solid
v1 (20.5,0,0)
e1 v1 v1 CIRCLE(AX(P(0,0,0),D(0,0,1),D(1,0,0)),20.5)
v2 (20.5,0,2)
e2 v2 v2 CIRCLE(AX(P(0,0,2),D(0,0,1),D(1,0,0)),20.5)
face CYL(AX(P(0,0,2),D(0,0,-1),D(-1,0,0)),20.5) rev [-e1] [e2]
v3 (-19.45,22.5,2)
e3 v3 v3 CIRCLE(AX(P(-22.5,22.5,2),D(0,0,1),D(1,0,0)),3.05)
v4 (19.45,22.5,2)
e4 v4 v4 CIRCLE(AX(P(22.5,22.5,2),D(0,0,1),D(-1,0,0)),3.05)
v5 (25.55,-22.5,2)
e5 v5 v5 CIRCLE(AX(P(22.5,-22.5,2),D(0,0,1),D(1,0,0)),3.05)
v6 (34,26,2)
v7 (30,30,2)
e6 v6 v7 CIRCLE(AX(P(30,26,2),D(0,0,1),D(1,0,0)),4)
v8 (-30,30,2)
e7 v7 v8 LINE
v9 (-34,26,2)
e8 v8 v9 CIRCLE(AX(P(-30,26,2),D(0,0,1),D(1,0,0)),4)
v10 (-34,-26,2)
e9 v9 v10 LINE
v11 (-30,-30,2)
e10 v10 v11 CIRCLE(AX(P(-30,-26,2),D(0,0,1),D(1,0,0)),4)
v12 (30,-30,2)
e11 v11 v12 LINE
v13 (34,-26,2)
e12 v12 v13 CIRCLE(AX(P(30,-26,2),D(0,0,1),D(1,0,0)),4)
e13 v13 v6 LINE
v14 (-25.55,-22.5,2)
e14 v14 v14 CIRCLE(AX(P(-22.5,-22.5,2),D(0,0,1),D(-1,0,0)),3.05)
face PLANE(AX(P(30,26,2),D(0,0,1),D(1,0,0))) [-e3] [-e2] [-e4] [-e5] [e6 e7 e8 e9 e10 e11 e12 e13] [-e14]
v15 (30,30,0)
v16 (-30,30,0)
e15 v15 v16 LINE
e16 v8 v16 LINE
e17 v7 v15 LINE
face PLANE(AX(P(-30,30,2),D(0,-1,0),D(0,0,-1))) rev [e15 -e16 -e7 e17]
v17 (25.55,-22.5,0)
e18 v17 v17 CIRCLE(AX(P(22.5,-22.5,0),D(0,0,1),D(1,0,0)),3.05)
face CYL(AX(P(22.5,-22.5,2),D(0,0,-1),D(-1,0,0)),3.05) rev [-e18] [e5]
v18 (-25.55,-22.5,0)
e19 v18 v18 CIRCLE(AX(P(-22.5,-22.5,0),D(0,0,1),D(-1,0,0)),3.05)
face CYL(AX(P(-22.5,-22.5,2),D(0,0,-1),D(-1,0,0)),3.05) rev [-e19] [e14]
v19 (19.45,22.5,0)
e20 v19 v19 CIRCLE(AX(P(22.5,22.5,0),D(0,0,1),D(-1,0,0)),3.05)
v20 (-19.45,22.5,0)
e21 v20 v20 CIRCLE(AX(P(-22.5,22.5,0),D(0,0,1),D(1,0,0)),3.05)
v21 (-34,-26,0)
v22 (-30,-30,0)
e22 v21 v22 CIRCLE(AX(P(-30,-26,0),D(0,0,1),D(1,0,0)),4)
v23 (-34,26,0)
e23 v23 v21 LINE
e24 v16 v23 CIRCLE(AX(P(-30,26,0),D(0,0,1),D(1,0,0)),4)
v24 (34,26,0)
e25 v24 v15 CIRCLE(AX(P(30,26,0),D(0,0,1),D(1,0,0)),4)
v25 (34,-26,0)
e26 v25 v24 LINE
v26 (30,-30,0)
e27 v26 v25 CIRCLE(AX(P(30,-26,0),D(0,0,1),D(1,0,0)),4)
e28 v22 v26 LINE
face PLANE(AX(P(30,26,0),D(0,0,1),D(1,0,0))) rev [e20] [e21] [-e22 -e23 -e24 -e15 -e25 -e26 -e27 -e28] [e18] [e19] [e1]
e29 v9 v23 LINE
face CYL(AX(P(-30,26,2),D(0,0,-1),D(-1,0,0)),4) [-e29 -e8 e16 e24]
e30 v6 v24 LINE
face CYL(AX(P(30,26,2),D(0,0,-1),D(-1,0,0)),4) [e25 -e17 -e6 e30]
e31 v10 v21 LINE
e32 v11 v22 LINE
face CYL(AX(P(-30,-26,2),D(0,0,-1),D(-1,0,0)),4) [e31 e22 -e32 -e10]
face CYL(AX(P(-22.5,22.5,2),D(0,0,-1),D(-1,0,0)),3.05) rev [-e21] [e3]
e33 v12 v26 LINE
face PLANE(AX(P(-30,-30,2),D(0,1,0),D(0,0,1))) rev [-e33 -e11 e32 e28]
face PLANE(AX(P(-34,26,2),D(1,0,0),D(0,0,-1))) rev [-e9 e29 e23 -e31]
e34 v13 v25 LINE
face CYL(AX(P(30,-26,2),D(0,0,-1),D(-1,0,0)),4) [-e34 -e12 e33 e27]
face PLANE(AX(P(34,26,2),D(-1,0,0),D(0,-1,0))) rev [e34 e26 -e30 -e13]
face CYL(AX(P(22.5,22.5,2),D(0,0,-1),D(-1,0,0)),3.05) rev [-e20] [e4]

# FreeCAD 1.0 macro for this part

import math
import FreeCAD as App
import Part
import Sketcher
from FreeCAD import Vector

doc = App.newDocument("Part")
body = doc.addObject("PartDesign::Body", "Body")

# Sketch on XY plane
sketch1 = body.newObject("Sketcher::SketchObject", "Sketch")
sketch1.AttachmentSupport = (doc.getObject("XY_Plane"), [""])
sketch1.MapMode = "FlatFace"
sketch1.addGeometry(Part.LineSegment(Vector(30, 30, 0), Vector(-30, 30, 0)), False)
sketch1.addGeometry(Part.ArcOfCircle(Part.Circle(Vector(-30, 26, 0), Vector(0, 0, 1), 4), math.radians(90), math.radians(180)), False)
sketch1.addGeometry(Part.LineSegment(Vector(-34, 26, 0), Vector(-34, -26, 0)), False)
sketch1.addGeometry(Part.ArcOfCircle(Part.Circle(Vector(-30, -26, 0), Vector(0, 0, 1), 4), math.radians(180), math.radians(270)), False)
sketch1.addGeometry(Part.LineSegment(Vector(-30, -30, 0), Vector(30, -30, 0)), False)
sketch1.addGeometry(Part.ArcOfCircle(Part.Circle(Vector(30, -26, 0), Vector(0, 0, 1), 4), math.radians(-90), math.radians(0)), False)
sketch1.addGeometry(Part.LineSegment(Vector(34, -26, 0), Vector(34, 26, 0)), False)
sketch1.addGeometry(Part.ArcOfCircle(Part.Circle(Vector(30, 26, 0), Vector(0, 0, 1), 4), math.radians(0), math.radians(90)), False)
sketch1.addGeometry(Part.Circle(Vector(22.5, -22.5, 0), Vector(0, 0, 1), 3), False)
sketch1.addGeometry(Part.Circle(Vector(-22.5, -22.5, 0), Vector(0, 0, 1), 3), False)
sketch1.addGeometry(Part.Circle(Vector(22.5, 22.5, 0), Vector(0, 0, 1), 3), False)
sketch1.addGeometry(Part.Circle(Vector(0, 0, 0), Vector(0, 0, 1), 20.5), False)
sketch1.addGeometry(Part.Circle(Vector(-22.5, 22.5, 0), Vector(0, 0, 1), 3), False)
sketch1.addConstraint(Sketcher.Constraint("Tangent", 0, 2, 1, 1))
sketch1.addConstraint(Sketcher.Constraint("Tangent", 1, 2, 2, 1))
sketch1.addConstraint(Sketcher.Constraint("Tangent", 2, 2, 3, 1))
sketch1.addConstraint(Sketcher.Constraint("Tangent", 3, 2, 4, 1))
sketch1.addConstraint(Sketcher.Constraint("Tangent", 4, 2, 5, 1))
sketch1.addConstraint(Sketcher.Constraint("Tangent", 5, 2, 6, 1))
sketch1.addConstraint(Sketcher.Constraint("Tangent", 6, 2, 7, 1))
sketch1.addConstraint(Sketcher.Constraint("Tangent", 7, 2, 0, 1))
sketch1.addConstraint(Sketcher.Constraint("Horizontal", 0))
sketch1.addConstraint(Sketcher.Constraint("Vertical", 2))
sketch1.addConstraint(Sketcher.Constraint("Horizontal", 4))
sketch1.addConstraint(Sketcher.Constraint("Vertical", 6))
sketch1.addConstraint(Sketcher.Constraint("Coincident", 11, 3, -1, 1))
sketch1.addConstraint(Sketcher.Constraint("Equal", 1, 3))
sketch1.addConstraint(Sketcher.Constraint("Equal", 3, 5))
sketch1.addConstraint(Sketcher.Constraint("Equal", 5, 7))
sketch1.addConstraint(Sketcher.Constraint("Equal", 8, 9))
sketch1.addConstraint(Sketcher.Constraint("Equal", 9, 10))
sketch1.addConstraint(Sketcher.Constraint("Equal", 10, 12))
sketch1.addConstraint(Sketcher.Constraint("Symmetric", 1, 3, 5, 3, -1, 1))
sketch1.addConstraint(Sketcher.Constraint("Symmetric", 9, 3, 10, 3, -1, 1))
sketch1.addConstraint(Sketcher.Constraint("Symmetric", 8, 3, 12, 3, -1, 1))
sketch1.addConstraint(Sketcher.Constraint("Symmetric", 8, 3, 9, 3, -2))
sketch1.addConstraint(Sketcher.Constraint("Diameter", 11, 41.0))
sketch1.addConstraint(Sketcher.Constraint("Radius", 1, 4.0))
sketch1.addConstraint(Sketcher.Constraint("Diameter", 8, 6.1))
sketch1.addConstraint(Sketcher.Constraint("DistanceX", 0, 2, 0, 1, 60.0))
sketch1.addConstraint(Sketcher.Constraint("DistanceY", 2, 2, 2, 1, 52.0))
sketch1.addConstraint(Sketcher.Constraint("DistanceX", 9, 3, 8, 3, 45.0))
sketch1.addConstraint(Sketcher.Constraint("DistanceY", 8, 3, 10, 3, 45.0))
pad1 = body.newObject("PartDesign::Pad", "Pad")
pad1.Profile = sketch1
pad1.Length = 2

doc.recompute()
